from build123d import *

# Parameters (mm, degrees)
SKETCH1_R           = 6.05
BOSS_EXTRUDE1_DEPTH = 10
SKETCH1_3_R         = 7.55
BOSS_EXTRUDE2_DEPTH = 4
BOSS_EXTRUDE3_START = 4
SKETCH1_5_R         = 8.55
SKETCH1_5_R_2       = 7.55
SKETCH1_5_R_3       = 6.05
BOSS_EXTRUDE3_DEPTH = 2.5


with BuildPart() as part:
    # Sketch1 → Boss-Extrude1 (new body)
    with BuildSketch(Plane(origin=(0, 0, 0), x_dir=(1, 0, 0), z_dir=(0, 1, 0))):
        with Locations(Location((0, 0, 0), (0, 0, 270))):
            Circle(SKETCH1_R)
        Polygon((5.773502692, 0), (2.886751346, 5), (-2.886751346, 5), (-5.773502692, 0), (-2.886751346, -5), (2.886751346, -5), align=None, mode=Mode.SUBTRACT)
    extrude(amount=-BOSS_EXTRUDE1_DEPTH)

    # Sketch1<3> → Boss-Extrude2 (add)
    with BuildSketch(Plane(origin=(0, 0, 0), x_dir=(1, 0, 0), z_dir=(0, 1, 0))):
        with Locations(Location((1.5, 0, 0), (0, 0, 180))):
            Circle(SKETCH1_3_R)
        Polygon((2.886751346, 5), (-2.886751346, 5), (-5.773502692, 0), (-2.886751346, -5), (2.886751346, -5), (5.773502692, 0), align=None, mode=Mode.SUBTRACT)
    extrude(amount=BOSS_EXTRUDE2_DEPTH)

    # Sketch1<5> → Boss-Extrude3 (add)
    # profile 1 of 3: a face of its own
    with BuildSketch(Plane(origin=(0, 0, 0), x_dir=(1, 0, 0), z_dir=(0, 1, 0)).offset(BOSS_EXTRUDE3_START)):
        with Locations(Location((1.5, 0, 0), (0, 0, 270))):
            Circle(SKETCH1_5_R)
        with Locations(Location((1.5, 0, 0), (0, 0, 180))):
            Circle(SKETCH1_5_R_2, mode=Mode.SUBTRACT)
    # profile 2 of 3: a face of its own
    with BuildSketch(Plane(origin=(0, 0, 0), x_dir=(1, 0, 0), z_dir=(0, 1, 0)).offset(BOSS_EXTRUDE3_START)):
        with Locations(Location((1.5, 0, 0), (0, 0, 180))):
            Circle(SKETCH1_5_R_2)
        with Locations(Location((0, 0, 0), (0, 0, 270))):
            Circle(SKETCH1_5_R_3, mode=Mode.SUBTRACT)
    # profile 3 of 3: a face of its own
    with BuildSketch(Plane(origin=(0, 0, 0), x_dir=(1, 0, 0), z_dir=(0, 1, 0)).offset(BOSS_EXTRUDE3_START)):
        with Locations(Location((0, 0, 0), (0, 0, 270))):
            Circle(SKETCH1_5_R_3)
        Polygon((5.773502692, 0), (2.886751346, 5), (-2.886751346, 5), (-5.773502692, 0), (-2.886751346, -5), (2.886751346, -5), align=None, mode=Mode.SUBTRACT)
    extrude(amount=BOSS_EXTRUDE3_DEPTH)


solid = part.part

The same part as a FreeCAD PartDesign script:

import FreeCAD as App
import Part
import Sketcher
from FreeCAD import Vector
Q = App.Units.Quantity


def add_polygon(sketch, points):
    """Adds a closed chain of lines whose ends are joined by coincident constraints."""
    first, n = sketch.GeometryCount, len(points)
    for a, b in zip(points, points[1:] + points[:1]):
        sketch.addGeometry(Part.LineSegment(App.Vector(*a, 0), App.Vector(*b, 0)), False)
    for i in range(n):
        sketch.addConstraint(Sketcher.Constraint("Coincident", first + i, 2, first + (i + 1) % n, 1))

doc = App.newDocument("Part")
body = doc.addObject("PartDesign::Body", "Body")

# Sketch on XZ plane
sketch1 = body.newObject("Sketcher::SketchObject", "Sketch")
sketch1.AttachmentSupport = (doc.getObject("XZ_Plane"), [""])
sketch1.MapMode = "FlatFace"
sketch1.addGeometry(Part.Circle(Vector(0, 0, 0), Vector(0, 0, 1), 6), False)  # 0
add_polygon(sketch1, [(3, -5), (6, 0), (3, 5), (-3, 5), (-6, 0), (-3, -5)])  # lines 1-6
sketch1.addConstraint([
    Sketcher.Constraint("Horizontal", 3),
    Sketcher.Constraint("Horizontal", 6),
    Sketcher.Constraint("Coincident", 0, 3, -1, 1),
    Sketcher.Constraint("Symmetric", 1, 2, 4, 2, -1, 1),
    Sketcher.Constraint("Symmetric", 2, 2, 5, 2, -1, 1),
    Sketcher.Constraint("PointOnObject", 1, 2, -1),
    Sketcher.Constraint("Parallel", 1, 4),
    Sketcher.Constraint("Vertical", 3, 2, 5, 2),
    Sketcher.Constraint("Diameter", 0, Q("12.1 mm")),
    Sketcher.Constraint("Angle", 1, Q("60 deg")),
    Sketcher.Constraint("DistanceY", -1, 1, 2, 2, Q("5 mm")),
    Sketcher.Constraint("DistanceX", 3, 2, 3, 1, Q("5.773503 mm")),
])
pad1 = body.newObject("PartDesign::Pad", "Pad")
pad1.Profile = sketch1
pad1.Length = 10

# Sketch on XZ plane
sketch2 = body.newObject("Sketcher::SketchObject", "Sketch001")
sketch2.AttachmentSupport = (doc.getObject("XZ_Plane"), [""])
sketch2.MapMode = "FlatFace"
sketch2.addGeometry(Part.Circle(Vector(2, 0, 0), Vector(0, 0, 1), 8), False)  # 0
add_polygon(sketch2, [(-3, -5), (3, -5), (6, 0), (3, 5), (-3, 5), (-6, 0)])  # lines 1-6
sketch2.addConstraint([
    Sketcher.Constraint("Horizontal", 1),
    Sketcher.Constraint("Horizontal", 4),
    Sketcher.Constraint("Symmetric", 1, 2, 4, 2, -1, 1),
    Sketcher.Constraint("Symmetric", 2, 2, 5, 2, -1, 1),
    Sketcher.Constraint("PointOnObject", 0, 3, -1),
    Sketcher.Constraint("PointOnObject", 2, 2, -1),
    Sketcher.Constraint("Parallel", 3, 6),
    Sketcher.Constraint("Vertical", 1, 2, 3, 2),
    Sketcher.Constraint("Diameter", 0, Q("15.1 mm")),
    Sketcher.Constraint("Angle", 2, Q("60 deg")),
    Sketcher.Constraint("DistanceY", 1, 2, -1, 1, Q("5 mm")),
    Sketcher.Constraint("DistanceX", -1, 1, 0, 3, Q("1.5 mm")),
    Sketcher.Constraint("DistanceX", 1, 1, 1, 2, Q("5.773503 mm")),
])
pad2 = body.newObject("PartDesign::Pad", "Pad001")
pad2.Profile = sketch2
pad2.Length = 4
pad2.Reversed = True

# Sketch on XZ plane
sketch3 = body.newObject("Sketcher::SketchObject", "Sketch002")
sketch3.AttachmentSupport = (doc.getObject("XZ_Plane"), [""])
sketch3.MapMode = "FlatFace"
sketch3.AttachmentOffset = App.Placement(Vector(0, 0, -4), App.Rotation())
sketch3.addGeometry(Part.Circle(Vector(2, 0, 0), Vector(0, 0, 1), 9), False)  # 0
add_polygon(sketch3, [(6, 0), (3, 5), (-3, 5), (-6, 0), (-3, -5), (3, -5)])  # lines 1-6
sketch3.addConstraint([
    Sketcher.Constraint("Horizontal", 2),
    Sketcher.Constraint("Horizontal", 5),
    Sketcher.Constraint("Symmetric", 1, 2, 4, 2, -1, 1),
    Sketcher.Constraint("Symmetric", 3, 2, 6, 2, -1, 1),
    Sketcher.Constraint("PointOnObject", 0, 3, -1),
    Sketcher.Constraint("PointOnObject", 3, 2, -1),
    Sketcher.Constraint("Parallel", 3, 6),
    Sketcher.Constraint("Vertical", 2, 2, 4, 2),
    Sketcher.Constraint("Diameter", 0, Q("17.1 mm")),
    Sketcher.Constraint("Angle", 1, Q("120 deg")),
    Sketcher.Constraint("DistanceY", -1, 1, 1, 2, Q("5 mm")),
    Sketcher.Constraint("DistanceX", -1, 1, 0, 3, Q("1.5 mm")),
    Sketcher.Constraint("DistanceX", 2, 2, 2, 1, Q("5.773503 mm")),
])
pad3 = body.newObject("PartDesign::Pad", "Pad002")
pad3.Profile = sketch3
pad3.Length = 2.5
pad3.Reversed = True

doc.recompute()
